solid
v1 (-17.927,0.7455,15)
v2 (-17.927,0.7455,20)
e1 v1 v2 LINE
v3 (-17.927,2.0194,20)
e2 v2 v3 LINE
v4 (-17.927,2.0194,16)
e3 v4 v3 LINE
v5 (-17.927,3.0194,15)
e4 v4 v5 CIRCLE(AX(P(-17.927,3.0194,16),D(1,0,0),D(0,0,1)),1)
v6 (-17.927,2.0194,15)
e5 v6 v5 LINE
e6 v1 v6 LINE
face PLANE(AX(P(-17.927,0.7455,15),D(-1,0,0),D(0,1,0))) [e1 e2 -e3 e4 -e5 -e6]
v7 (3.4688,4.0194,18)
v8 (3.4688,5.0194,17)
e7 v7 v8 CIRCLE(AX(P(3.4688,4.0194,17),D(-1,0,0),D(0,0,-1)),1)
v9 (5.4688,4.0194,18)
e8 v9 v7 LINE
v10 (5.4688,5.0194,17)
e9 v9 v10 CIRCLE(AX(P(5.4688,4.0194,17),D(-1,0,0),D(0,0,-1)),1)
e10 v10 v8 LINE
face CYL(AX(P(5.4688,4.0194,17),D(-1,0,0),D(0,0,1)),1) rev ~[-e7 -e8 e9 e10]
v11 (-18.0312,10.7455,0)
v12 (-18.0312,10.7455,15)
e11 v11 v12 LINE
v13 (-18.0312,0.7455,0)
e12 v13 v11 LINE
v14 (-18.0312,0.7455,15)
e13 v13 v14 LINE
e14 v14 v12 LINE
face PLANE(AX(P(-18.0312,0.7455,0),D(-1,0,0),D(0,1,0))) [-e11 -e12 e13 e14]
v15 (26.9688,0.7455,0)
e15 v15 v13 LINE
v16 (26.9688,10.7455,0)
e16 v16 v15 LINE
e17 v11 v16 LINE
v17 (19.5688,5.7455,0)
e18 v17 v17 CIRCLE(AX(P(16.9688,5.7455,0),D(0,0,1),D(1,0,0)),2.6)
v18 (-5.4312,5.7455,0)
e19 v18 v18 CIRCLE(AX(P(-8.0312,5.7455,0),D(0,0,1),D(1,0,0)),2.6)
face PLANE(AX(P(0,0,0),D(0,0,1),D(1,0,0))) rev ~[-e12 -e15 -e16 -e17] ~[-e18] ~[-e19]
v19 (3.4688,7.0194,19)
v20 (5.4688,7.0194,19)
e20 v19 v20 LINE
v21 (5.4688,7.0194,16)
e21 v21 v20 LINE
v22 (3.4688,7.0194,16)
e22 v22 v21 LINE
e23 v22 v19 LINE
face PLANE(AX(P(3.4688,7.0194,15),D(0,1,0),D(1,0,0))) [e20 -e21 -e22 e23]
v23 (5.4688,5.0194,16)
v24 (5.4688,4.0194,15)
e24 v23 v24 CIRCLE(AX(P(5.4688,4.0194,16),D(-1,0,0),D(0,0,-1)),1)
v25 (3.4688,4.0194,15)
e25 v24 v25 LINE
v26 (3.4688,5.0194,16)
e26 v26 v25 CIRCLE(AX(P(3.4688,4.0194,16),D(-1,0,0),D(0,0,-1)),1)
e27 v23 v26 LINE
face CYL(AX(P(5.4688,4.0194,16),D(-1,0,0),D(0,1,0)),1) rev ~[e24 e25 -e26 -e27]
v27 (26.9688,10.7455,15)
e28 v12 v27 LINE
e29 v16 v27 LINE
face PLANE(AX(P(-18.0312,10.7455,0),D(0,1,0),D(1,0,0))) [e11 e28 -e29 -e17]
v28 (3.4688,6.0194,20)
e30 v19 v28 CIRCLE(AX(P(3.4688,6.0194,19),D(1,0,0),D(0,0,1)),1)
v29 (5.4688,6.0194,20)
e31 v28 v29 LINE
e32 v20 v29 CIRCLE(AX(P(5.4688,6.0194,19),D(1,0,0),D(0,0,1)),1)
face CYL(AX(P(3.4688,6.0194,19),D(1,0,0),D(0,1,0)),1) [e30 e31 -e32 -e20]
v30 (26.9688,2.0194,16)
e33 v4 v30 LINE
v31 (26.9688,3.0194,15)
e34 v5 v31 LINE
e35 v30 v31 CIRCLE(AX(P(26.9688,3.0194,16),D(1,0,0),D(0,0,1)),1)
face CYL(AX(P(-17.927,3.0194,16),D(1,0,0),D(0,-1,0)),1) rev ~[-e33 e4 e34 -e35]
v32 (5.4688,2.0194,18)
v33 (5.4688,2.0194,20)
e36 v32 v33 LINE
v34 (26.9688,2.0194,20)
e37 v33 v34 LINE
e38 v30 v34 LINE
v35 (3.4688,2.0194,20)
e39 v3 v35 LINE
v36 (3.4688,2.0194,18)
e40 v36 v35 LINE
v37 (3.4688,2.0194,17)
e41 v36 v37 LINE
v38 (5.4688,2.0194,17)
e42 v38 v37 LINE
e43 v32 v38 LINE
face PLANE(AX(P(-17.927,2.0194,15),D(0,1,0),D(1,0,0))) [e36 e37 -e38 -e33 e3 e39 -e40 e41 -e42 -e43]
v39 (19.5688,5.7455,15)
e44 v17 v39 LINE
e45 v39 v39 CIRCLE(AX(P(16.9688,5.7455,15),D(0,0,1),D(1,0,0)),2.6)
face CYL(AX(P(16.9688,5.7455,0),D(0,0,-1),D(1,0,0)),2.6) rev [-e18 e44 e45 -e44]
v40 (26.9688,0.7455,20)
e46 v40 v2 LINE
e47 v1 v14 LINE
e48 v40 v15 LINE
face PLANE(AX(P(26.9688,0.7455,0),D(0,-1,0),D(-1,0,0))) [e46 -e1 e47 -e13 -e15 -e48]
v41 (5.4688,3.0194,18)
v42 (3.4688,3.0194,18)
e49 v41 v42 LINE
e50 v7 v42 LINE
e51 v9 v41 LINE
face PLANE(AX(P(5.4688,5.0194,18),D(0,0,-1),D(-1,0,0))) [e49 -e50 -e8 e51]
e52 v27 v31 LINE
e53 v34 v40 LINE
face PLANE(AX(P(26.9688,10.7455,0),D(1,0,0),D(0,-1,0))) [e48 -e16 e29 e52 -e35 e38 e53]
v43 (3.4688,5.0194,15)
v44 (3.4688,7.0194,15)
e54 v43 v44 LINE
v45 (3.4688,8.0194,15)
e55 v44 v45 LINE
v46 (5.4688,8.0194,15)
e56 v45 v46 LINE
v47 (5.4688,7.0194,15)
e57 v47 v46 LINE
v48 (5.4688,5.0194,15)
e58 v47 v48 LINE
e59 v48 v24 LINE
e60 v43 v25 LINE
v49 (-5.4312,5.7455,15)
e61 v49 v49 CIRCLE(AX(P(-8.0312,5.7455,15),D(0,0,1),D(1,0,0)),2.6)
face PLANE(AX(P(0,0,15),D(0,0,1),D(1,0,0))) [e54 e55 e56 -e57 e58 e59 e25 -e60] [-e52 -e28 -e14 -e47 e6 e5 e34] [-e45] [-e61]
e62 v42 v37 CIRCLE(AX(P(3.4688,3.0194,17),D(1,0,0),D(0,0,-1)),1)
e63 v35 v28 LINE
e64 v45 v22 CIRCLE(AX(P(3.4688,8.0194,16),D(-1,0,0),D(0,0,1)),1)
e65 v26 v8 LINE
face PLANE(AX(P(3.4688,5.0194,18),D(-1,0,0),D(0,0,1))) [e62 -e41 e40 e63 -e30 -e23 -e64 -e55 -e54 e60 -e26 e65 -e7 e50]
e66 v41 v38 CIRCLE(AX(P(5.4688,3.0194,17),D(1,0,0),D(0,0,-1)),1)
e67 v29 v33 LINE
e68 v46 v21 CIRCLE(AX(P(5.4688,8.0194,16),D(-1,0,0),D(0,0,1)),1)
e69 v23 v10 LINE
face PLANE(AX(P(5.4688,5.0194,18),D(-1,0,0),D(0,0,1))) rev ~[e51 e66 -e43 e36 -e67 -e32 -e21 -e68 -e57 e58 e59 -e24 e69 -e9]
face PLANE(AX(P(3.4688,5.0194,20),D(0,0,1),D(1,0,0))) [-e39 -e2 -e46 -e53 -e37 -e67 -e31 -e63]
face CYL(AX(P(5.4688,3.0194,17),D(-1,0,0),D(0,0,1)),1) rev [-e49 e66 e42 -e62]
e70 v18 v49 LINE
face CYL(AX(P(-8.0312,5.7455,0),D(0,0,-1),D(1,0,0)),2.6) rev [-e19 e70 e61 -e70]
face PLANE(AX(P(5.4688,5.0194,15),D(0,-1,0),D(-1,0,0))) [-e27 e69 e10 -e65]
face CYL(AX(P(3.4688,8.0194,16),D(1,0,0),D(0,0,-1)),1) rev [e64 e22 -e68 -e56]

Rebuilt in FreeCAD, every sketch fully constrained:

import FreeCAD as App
import Part
import Sketcher
Q = App.Units.Quantity


def edges_at(feature, points):
    """Names of the edges that pass closest to the given points."""
    edges = feature.Shape.Edges
    near = lambda p: min(range(len(edges)), key=lambda i: edges[i].distToShape(Part.Vertex(*p))[0])
    return sorted({f"Edge{near(p) + 1}" for p in points})

doc = App.newDocument("Part")
body = doc.addObject("PartDesign::Body", "Body")

# Sketch on XY plane
sketch1 = body.newObject("Sketcher::SketchObject", "Sketch")
sketch1.AttachmentSupport = (doc.getObject("XY_Plane"), [""])
sketch1.MapMode = "FlatFace"
sketch1.addGeometry(Part.LineSegment(App.Vector(27, 10.7, 0), App.Vector(-18, 10.7, 0)), False)
sketch1.addGeometry(Part.LineSegment(App.Vector(-18, 10.7, 0), App.Vector(-18, 0.7, 0)), False)
sketch1.addGeometry(Part.LineSegment(App.Vector(-18, 0.7, 0), App.Vector(27, 0.7, 0)), False)
sketch1.addGeometry(Part.LineSegment(App.Vector(27, 0.7, 0), App.Vector(27, 10.7, 0)), False)
sketch1.addGeometry(Part.Circle(App.Vector(-8, 5.7, 0), App.Vector(0, 0, 1), 2.6), False)
sketch1.addGeometry(Part.Circle(App.Vector(17, 5.7, 0), App.Vector(0, 0, 1), 2.6), False)
sketch1.addConstraint(Sketcher.Constraint("Coincident", 0, 2, 1, 1))
sketch1.addConstraint(Sketcher.Constraint("Coincident", 1, 2, 2, 1))
sketch1.addConstraint(Sketcher.Constraint("Coincident", 2, 2, 3, 1))
sketch1.addConstraint(Sketcher.Constraint("Coincident", 3, 2, 0, 1))
sketch1.addConstraint(Sketcher.Constraint("Horizontal", 0))
sketch1.addConstraint(Sketcher.Constraint("Vertical", 1))
sketch1.addConstraint(Sketcher.Constraint("Horizontal", 2))
sketch1.addConstraint(Sketcher.Constraint("Vertical", 3))
sketch1.addConstraint(Sketcher.Constraint("Equal", 4, 5))
sketch1.addConstraint(Sketcher.Constraint("Horizontal", 4, 3, 5, 3))
sketch1.addConstraint(Sketcher.Constraint("Diameter", 4, Q("5.2 mm")))
sketch1.addConstraint(Sketcher.Constraint("DistanceX", 0, 2, 0, 1, Q("45 mm")))
sketch1.addConstraint(Sketcher.Constraint("DistanceY", 1, 2, 1, 1, Q("10 mm")))
sketch1.addConstraint(Sketcher.Constraint("DistanceX", 4, 3, 5, 3, Q("25 mm")))
sketch1.addConstraint(Sketcher.Constraint("DistanceX", 0, 2, 4, 3, Q("10 mm")))
sketch1.addConstraint(Sketcher.Constraint("DistanceY", 4, 3, 0, 2, Q("5 mm")))
sketch1.addConstraint(Sketcher.Constraint("DistanceX", 4, 3, -1, 1, Q("8.0312 mm")))
sketch1.addConstraint(Sketcher.Constraint("DistanceY", -1, 1, 4, 3, Q("5.7455 mm")))
pad1 = body.newObject("PartDesign::Pad", "Pad")
pad1.Profile = sketch1
pad1.Length = 15

# Sketch on XY plane
sketch2 = body.newObject("Sketcher::SketchObject", "Sketch001")
sketch2.AttachmentSupport = (doc.getObject("XY_Plane"), [""])
sketch2.MapMode = "FlatFace"
sketch2.AttachmentOffset = App.Placement(App.Vector(0, 0, 15), App.Rotation())
sketch2.addGeometry(Part.LineSegment(App.Vector(27, 2, 0), App.Vector(-17.9, 2, 0)), False)
sketch2.addGeometry(Part.LineSegment(App.Vector(-17.9, 2, 0), App.Vector(-17.9, 0.7, 0)), False)
sketch2.addGeometry(Part.LineSegment(App.Vector(-17.9, 0.7, 0), App.Vector(27, 0.7, 0)), False)
sketch2.addGeometry(Part.LineSegment(App.Vector(27, 0.7, 0), App.Vector(27, 2, 0)), False)
sketch2.addConstraint(Sketcher.Constraint("Coincident", 0, 2, 1, 1))
sketch2.addConstraint(Sketcher.Constraint("Coincident", 1, 2, 2, 1))
sketch2.addConstraint(Sketcher.Constraint("Coincident", 2, 2, 3, 1))
sketch2.addConstraint(Sketcher.Constraint("Coincident", 3, 2, 0, 1))
sketch2.addConstraint(Sketcher.Constraint("Horizontal", 0))
sketch2.addConstraint(Sketcher.Constraint("Vertical", 1))
sketch2.addConstraint(Sketcher.Constraint("Horizontal", 2))
sketch2.addConstraint(Sketcher.Constraint("Vertical", 3))
sketch2.addConstraint(Sketcher.Constraint("DistanceY", 1, 2, 1, 1, Q("1.274 mm")))
sketch2.addConstraint(Sketcher.Constraint("DistanceX", 0, 2, 0, 1, Q("44.8958 mm")))
sketch2.addConstraint(Sketcher.Constraint("DistanceX", 0, 2, -1, 1, Q("17.927 mm")))
sketch2.addConstraint(Sketcher.Constraint("DistanceY", -1, 1, 0, 2, Q("2.0194 mm")))
pad2 = body.newObject("PartDesign::Pad", "Pad001")
pad2.Profile = sketch2
pad2.Length = 5

# Sketch on XY plane
sketch3 = body.newObject("Sketcher::SketchObject", "Sketch002")
sketch3.AttachmentSupport = (doc.getObject("XY_Plane"), [""])
sketch3.MapMode = "FlatFace"
sketch3.AttachmentOffset = App.Placement(App.Vector(0, 0, 15), App.Rotation())
sketch3.addGeometry(Part.LineSegment(App.Vector(3.5, 5, 0), App.Vector(5.5, 5, 0)), False)
sketch3.addGeometry(Part.LineSegment(App.Vector(5.5, 5, 0), App.Vector(5.5, 7, 0)), False)
sketch3.addGeometry(Part.LineSegment(App.Vector(5.5, 7, 0), App.Vector(3.5, 7, 0)), False)
sketch3.addGeometry(Part.LineSegment(App.Vector(3.5, 7, 0), App.Vector(3.5, 5, 0)), False)
sketch3.addConstraint(Sketcher.Constraint("Coincident", 0, 2, 1, 1))
sketch3.addConstraint(Sketcher.Constraint("Coincident", 1, 2, 2, 1))
sketch3.addConstraint(Sketcher.Constraint("Coincident", 2, 2, 3, 1))
sketch3.addConstraint(Sketcher.Constraint("Coincident", 3, 2, 0, 1))
sketch3.addConstraint(Sketcher.Constraint("Horizontal", 0))
sketch3.addConstraint(Sketcher.Constraint("Vertical", 1))
sketch3.addConstraint(Sketcher.Constraint("Horizontal", 2))
sketch3.addConstraint(Sketcher.Constraint("Vertical", 3))
sketch3.addConstraint(Sketcher.Constraint("Equal", 2, 1))
sketch3.addConstraint(Sketcher.Constraint("DistanceX", 0, 1, 0, 2, Q("2 mm")))
sketch3.addConstraint(Sketcher.Constraint("DistanceX", -1, 1, 0, 2, Q("5.4688 mm")))
sketch3.addConstraint(Sketcher.Constraint("DistanceY", -1, 1, 0, 2, Q("5.0194 mm")))
pad3 = body.newObject("PartDesign::Pad", "Pad002")
pad3.Profile = sketch3
pad3.Length = 5

# Sketch on XZ plane
sketch4 = body.newObject("Sketcher::SketchObject", "Sketch003")
sketch4.AttachmentSupport = (doc.getObject("XZ_Plane"), [""])
sketch4.MapMode = "FlatFace"
sketch4.AttachmentOffset = App.Placement(App.Vector(0, 0, -5.0194), App.Rotation())
sketch4.addGeometry(Part.LineSegment(App.Vector(3.5, 18, 0), App.Vector(5.5, 18, 0)), False)
sketch4.addGeometry(Part.LineSegment(App.Vector(5.5, 18, 0), App.Vector(5.5, 20, 0)), False)
sketch4.addGeometry(Part.LineSegment(App.Vector(5.5, 20, 0), App.Vector(3.5, 20, 0)), False)
sketch4.addGeometry(Part.LineSegment(App.Vector(3.5, 20, 0), App.Vector(3.5, 18, 0)), False)
sketch4.addConstraint(Sketcher.Constraint("Coincident", 0, 2, 1, 1))
sketch4.addConstraint(Sketcher.Constraint("Coincident", 1, 2, 2, 1))
sketch4.addConstraint(Sketcher.Constraint("Coincident", 2, 2, 3, 1))
sketch4.addConstraint(Sketcher.Constraint("Coincident", 3, 2, 0, 1))
sketch4.addConstraint(Sketcher.Constraint("Horizontal", 0))
sketch4.addConstraint(Sketcher.Constraint("Vertical", 1))
sketch4.addConstraint(Sketcher.Constraint("Horizontal", 2))
sketch4.addConstraint(Sketcher.Constraint("Vertical", 3))
sketch4.addConstraint(Sketcher.Constraint("Equal", 2, 1))
sketch4.addConstraint(Sketcher.Constraint("DistanceX", 0, 1, 0, 2, Q("2 mm")))
sketch4.addConstraint(Sketcher.Constraint("DistanceY", -1, 1, 0, 2, Q("18 mm")))
sketch4.addConstraint(Sketcher.Constraint("DistanceX", -1, 1, 0, 2, Q("5.4688 mm")))
pad4 = body.newObject("PartDesign::Pad", "Pad003")
pad4.Profile = sketch4
pad4.Length = 4
doc.recompute()

fillet = body.newObject("PartDesign::Fillet", "Fillet")
fillet.Base = (pad4, edges_at(pad4, [
    (4.469, 2.019, 18),
    (4.469, 5.019, 18),
    (4.469, 5.019, 15),
    (4.521, 2.019, 15),
]))
fillet.Radius = 1
doc.recompute()

fillet2 = body.newObject("PartDesign::Fillet", "Fillet001")
fillet2.Base = (fillet, edges_at(fillet, [(4.469, 7.019, 20), (4.469, 7.019, 15)]))
fillet2.Radius = 1

doc.recompute()
